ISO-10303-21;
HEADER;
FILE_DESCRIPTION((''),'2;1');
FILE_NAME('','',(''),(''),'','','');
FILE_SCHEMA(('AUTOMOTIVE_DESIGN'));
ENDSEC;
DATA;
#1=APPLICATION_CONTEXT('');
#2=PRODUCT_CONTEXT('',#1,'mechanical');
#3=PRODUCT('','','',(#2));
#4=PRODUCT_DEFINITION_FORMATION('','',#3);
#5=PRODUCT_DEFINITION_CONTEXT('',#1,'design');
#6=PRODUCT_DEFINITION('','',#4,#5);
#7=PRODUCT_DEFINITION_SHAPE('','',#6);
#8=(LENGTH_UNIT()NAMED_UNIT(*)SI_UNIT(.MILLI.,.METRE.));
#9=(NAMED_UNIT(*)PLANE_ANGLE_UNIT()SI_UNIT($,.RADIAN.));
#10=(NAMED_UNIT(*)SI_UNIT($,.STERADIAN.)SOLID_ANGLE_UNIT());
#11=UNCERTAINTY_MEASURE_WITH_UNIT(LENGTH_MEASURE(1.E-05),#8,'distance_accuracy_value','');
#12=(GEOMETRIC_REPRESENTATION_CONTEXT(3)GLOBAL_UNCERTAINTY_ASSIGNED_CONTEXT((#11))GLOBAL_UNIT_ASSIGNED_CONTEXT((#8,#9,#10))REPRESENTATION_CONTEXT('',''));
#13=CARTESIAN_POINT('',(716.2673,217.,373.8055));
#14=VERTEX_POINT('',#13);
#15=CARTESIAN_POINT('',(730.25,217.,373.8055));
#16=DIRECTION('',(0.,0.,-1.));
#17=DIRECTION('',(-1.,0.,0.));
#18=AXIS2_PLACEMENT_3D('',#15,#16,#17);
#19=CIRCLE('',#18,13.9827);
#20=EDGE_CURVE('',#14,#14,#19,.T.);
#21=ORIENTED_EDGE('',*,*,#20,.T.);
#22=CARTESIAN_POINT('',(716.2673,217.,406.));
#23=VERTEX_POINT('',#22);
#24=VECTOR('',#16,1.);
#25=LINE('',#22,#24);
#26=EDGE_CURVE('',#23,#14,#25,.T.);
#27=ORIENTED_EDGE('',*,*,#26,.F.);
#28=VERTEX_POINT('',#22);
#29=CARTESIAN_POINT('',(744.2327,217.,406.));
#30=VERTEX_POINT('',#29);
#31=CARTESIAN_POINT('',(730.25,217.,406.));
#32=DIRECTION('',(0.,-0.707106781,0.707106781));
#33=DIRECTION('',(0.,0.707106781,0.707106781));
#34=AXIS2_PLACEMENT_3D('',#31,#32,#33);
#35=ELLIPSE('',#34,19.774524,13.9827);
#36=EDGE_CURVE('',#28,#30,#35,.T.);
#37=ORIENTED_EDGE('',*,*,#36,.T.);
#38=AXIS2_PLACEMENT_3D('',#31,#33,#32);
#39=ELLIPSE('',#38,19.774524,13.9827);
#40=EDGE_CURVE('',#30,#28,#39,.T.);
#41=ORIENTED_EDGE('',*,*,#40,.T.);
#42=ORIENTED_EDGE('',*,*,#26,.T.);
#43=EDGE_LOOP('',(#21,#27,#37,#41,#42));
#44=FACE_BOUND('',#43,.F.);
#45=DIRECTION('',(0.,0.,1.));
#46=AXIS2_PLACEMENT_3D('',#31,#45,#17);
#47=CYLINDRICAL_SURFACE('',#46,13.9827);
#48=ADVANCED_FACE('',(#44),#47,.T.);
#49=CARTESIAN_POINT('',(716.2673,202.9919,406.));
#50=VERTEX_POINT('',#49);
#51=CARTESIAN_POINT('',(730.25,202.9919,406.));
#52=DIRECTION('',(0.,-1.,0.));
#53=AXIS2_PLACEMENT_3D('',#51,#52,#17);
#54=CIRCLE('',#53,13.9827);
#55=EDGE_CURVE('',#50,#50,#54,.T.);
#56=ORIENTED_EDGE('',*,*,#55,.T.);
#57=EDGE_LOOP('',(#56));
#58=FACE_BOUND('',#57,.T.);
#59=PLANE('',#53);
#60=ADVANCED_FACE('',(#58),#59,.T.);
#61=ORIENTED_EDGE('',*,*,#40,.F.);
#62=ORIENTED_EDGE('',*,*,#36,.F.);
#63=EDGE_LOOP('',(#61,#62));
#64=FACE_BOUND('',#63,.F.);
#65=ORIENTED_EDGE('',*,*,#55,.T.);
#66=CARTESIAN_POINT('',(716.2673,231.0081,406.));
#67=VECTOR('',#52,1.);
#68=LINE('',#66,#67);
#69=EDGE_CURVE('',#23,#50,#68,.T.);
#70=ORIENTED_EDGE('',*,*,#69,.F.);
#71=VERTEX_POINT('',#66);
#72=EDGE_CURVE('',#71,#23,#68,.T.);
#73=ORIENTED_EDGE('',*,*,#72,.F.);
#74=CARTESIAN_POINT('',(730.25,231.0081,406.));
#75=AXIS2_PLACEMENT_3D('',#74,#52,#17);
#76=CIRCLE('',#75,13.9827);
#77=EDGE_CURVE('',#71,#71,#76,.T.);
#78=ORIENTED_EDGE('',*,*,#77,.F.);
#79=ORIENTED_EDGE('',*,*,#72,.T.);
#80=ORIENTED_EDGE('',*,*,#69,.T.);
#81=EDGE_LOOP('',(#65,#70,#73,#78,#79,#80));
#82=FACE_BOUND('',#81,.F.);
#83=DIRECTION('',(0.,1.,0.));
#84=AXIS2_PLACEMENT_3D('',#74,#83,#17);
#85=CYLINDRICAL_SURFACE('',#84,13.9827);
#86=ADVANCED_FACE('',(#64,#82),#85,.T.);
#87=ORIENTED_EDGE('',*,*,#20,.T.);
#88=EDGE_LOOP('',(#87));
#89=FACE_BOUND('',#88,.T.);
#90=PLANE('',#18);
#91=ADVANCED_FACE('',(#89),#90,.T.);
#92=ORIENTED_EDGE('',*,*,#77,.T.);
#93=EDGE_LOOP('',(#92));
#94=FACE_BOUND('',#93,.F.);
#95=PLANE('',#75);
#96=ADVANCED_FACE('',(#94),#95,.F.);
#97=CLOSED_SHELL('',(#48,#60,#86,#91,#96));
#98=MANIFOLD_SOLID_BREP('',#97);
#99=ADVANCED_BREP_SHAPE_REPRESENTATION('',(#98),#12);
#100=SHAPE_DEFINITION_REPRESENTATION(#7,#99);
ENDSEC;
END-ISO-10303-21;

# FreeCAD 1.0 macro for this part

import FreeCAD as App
import Part
import Sketcher
Q = App.Units.Quantity

doc = App.newDocument("Part")
body = doc.addObject("PartDesign::Body", "Body")

# Sketch on XZ plane
sketch1 = doc.addObject("Sketcher::SketchObject", "Sketch")
body.addObject(sketch1)
sketch1.AttachmentSupport = (doc.XZ_Plane, [""])
sketch1.MapMode = "FlatFace"
sketch1.AttachmentOffset = App.Placement(App.Vector(0, 0, -0.5515 * 25.4), App.Rotation())
sketch1.addGeometry(Part.Circle(App.Vector(0, 0, 0), App.Vector(0, 0, 1), 14), False)
sketch1.addConstraint([
    Sketcher.Constraint("Coincident", 0, 3, -1, 1),
    Sketcher.Constraint("Diameter", 0, Q("1.101 in")),
])
pad1 = doc.addObject("PartDesign::Pad", "Pad")
body.addObject(pad1)
pad1.Profile = sketch1
pad1.Length = Q("1.103 in")
body2 = doc.addObject("PartDesign::Body", "Body001")

# Sketch on XY plane
sketch2 = doc.addObject("Sketcher::SketchObject", "Sketch001")
body2.addObject(sketch2)
sketch2.AttachmentSupport = (doc.getObject("XY_Plane001"), [""])
sketch2.MapMode = "FlatFace"
sketch2.addGeometry(Part.Circle(App.Vector(0, 0, 0), App.Vector(0, 0, 1), 14), False)
sketch2.addConstraint([
    Sketcher.Constraint("Coincident", 0, 3, -1, 1),
    Sketcher.Constraint("Diameter", 0, Q("1.101 in")),
])
pad2 = doc.addObject("PartDesign::Pad", "Pad001")
body2.addObject(pad2)
pad2.Profile = sketch2
pad2.Length = Q("1.2675 in")
doc.recompute()

boolean = doc.addObject("PartDesign::Boolean", "Boolean")
body2.addObject(boolean)
boolean.Type = "Fuse"
boolean.addObjects([body])
body3 = doc.addObject("PartDesign::Body", "Body002")
doc.recompute()

body2.Placement = App.Placement(App.Vector(730.25, 217, 406), App.Rotation(App.Vector(0, 1, 0), 180))
boolean2 = doc.addObject("PartDesign::Boolean", "Boolean001")
body3.addObject(boolean2)
boolean2.Type = "Fuse"
boolean2.addObjects([body2])

doc.recompute()
